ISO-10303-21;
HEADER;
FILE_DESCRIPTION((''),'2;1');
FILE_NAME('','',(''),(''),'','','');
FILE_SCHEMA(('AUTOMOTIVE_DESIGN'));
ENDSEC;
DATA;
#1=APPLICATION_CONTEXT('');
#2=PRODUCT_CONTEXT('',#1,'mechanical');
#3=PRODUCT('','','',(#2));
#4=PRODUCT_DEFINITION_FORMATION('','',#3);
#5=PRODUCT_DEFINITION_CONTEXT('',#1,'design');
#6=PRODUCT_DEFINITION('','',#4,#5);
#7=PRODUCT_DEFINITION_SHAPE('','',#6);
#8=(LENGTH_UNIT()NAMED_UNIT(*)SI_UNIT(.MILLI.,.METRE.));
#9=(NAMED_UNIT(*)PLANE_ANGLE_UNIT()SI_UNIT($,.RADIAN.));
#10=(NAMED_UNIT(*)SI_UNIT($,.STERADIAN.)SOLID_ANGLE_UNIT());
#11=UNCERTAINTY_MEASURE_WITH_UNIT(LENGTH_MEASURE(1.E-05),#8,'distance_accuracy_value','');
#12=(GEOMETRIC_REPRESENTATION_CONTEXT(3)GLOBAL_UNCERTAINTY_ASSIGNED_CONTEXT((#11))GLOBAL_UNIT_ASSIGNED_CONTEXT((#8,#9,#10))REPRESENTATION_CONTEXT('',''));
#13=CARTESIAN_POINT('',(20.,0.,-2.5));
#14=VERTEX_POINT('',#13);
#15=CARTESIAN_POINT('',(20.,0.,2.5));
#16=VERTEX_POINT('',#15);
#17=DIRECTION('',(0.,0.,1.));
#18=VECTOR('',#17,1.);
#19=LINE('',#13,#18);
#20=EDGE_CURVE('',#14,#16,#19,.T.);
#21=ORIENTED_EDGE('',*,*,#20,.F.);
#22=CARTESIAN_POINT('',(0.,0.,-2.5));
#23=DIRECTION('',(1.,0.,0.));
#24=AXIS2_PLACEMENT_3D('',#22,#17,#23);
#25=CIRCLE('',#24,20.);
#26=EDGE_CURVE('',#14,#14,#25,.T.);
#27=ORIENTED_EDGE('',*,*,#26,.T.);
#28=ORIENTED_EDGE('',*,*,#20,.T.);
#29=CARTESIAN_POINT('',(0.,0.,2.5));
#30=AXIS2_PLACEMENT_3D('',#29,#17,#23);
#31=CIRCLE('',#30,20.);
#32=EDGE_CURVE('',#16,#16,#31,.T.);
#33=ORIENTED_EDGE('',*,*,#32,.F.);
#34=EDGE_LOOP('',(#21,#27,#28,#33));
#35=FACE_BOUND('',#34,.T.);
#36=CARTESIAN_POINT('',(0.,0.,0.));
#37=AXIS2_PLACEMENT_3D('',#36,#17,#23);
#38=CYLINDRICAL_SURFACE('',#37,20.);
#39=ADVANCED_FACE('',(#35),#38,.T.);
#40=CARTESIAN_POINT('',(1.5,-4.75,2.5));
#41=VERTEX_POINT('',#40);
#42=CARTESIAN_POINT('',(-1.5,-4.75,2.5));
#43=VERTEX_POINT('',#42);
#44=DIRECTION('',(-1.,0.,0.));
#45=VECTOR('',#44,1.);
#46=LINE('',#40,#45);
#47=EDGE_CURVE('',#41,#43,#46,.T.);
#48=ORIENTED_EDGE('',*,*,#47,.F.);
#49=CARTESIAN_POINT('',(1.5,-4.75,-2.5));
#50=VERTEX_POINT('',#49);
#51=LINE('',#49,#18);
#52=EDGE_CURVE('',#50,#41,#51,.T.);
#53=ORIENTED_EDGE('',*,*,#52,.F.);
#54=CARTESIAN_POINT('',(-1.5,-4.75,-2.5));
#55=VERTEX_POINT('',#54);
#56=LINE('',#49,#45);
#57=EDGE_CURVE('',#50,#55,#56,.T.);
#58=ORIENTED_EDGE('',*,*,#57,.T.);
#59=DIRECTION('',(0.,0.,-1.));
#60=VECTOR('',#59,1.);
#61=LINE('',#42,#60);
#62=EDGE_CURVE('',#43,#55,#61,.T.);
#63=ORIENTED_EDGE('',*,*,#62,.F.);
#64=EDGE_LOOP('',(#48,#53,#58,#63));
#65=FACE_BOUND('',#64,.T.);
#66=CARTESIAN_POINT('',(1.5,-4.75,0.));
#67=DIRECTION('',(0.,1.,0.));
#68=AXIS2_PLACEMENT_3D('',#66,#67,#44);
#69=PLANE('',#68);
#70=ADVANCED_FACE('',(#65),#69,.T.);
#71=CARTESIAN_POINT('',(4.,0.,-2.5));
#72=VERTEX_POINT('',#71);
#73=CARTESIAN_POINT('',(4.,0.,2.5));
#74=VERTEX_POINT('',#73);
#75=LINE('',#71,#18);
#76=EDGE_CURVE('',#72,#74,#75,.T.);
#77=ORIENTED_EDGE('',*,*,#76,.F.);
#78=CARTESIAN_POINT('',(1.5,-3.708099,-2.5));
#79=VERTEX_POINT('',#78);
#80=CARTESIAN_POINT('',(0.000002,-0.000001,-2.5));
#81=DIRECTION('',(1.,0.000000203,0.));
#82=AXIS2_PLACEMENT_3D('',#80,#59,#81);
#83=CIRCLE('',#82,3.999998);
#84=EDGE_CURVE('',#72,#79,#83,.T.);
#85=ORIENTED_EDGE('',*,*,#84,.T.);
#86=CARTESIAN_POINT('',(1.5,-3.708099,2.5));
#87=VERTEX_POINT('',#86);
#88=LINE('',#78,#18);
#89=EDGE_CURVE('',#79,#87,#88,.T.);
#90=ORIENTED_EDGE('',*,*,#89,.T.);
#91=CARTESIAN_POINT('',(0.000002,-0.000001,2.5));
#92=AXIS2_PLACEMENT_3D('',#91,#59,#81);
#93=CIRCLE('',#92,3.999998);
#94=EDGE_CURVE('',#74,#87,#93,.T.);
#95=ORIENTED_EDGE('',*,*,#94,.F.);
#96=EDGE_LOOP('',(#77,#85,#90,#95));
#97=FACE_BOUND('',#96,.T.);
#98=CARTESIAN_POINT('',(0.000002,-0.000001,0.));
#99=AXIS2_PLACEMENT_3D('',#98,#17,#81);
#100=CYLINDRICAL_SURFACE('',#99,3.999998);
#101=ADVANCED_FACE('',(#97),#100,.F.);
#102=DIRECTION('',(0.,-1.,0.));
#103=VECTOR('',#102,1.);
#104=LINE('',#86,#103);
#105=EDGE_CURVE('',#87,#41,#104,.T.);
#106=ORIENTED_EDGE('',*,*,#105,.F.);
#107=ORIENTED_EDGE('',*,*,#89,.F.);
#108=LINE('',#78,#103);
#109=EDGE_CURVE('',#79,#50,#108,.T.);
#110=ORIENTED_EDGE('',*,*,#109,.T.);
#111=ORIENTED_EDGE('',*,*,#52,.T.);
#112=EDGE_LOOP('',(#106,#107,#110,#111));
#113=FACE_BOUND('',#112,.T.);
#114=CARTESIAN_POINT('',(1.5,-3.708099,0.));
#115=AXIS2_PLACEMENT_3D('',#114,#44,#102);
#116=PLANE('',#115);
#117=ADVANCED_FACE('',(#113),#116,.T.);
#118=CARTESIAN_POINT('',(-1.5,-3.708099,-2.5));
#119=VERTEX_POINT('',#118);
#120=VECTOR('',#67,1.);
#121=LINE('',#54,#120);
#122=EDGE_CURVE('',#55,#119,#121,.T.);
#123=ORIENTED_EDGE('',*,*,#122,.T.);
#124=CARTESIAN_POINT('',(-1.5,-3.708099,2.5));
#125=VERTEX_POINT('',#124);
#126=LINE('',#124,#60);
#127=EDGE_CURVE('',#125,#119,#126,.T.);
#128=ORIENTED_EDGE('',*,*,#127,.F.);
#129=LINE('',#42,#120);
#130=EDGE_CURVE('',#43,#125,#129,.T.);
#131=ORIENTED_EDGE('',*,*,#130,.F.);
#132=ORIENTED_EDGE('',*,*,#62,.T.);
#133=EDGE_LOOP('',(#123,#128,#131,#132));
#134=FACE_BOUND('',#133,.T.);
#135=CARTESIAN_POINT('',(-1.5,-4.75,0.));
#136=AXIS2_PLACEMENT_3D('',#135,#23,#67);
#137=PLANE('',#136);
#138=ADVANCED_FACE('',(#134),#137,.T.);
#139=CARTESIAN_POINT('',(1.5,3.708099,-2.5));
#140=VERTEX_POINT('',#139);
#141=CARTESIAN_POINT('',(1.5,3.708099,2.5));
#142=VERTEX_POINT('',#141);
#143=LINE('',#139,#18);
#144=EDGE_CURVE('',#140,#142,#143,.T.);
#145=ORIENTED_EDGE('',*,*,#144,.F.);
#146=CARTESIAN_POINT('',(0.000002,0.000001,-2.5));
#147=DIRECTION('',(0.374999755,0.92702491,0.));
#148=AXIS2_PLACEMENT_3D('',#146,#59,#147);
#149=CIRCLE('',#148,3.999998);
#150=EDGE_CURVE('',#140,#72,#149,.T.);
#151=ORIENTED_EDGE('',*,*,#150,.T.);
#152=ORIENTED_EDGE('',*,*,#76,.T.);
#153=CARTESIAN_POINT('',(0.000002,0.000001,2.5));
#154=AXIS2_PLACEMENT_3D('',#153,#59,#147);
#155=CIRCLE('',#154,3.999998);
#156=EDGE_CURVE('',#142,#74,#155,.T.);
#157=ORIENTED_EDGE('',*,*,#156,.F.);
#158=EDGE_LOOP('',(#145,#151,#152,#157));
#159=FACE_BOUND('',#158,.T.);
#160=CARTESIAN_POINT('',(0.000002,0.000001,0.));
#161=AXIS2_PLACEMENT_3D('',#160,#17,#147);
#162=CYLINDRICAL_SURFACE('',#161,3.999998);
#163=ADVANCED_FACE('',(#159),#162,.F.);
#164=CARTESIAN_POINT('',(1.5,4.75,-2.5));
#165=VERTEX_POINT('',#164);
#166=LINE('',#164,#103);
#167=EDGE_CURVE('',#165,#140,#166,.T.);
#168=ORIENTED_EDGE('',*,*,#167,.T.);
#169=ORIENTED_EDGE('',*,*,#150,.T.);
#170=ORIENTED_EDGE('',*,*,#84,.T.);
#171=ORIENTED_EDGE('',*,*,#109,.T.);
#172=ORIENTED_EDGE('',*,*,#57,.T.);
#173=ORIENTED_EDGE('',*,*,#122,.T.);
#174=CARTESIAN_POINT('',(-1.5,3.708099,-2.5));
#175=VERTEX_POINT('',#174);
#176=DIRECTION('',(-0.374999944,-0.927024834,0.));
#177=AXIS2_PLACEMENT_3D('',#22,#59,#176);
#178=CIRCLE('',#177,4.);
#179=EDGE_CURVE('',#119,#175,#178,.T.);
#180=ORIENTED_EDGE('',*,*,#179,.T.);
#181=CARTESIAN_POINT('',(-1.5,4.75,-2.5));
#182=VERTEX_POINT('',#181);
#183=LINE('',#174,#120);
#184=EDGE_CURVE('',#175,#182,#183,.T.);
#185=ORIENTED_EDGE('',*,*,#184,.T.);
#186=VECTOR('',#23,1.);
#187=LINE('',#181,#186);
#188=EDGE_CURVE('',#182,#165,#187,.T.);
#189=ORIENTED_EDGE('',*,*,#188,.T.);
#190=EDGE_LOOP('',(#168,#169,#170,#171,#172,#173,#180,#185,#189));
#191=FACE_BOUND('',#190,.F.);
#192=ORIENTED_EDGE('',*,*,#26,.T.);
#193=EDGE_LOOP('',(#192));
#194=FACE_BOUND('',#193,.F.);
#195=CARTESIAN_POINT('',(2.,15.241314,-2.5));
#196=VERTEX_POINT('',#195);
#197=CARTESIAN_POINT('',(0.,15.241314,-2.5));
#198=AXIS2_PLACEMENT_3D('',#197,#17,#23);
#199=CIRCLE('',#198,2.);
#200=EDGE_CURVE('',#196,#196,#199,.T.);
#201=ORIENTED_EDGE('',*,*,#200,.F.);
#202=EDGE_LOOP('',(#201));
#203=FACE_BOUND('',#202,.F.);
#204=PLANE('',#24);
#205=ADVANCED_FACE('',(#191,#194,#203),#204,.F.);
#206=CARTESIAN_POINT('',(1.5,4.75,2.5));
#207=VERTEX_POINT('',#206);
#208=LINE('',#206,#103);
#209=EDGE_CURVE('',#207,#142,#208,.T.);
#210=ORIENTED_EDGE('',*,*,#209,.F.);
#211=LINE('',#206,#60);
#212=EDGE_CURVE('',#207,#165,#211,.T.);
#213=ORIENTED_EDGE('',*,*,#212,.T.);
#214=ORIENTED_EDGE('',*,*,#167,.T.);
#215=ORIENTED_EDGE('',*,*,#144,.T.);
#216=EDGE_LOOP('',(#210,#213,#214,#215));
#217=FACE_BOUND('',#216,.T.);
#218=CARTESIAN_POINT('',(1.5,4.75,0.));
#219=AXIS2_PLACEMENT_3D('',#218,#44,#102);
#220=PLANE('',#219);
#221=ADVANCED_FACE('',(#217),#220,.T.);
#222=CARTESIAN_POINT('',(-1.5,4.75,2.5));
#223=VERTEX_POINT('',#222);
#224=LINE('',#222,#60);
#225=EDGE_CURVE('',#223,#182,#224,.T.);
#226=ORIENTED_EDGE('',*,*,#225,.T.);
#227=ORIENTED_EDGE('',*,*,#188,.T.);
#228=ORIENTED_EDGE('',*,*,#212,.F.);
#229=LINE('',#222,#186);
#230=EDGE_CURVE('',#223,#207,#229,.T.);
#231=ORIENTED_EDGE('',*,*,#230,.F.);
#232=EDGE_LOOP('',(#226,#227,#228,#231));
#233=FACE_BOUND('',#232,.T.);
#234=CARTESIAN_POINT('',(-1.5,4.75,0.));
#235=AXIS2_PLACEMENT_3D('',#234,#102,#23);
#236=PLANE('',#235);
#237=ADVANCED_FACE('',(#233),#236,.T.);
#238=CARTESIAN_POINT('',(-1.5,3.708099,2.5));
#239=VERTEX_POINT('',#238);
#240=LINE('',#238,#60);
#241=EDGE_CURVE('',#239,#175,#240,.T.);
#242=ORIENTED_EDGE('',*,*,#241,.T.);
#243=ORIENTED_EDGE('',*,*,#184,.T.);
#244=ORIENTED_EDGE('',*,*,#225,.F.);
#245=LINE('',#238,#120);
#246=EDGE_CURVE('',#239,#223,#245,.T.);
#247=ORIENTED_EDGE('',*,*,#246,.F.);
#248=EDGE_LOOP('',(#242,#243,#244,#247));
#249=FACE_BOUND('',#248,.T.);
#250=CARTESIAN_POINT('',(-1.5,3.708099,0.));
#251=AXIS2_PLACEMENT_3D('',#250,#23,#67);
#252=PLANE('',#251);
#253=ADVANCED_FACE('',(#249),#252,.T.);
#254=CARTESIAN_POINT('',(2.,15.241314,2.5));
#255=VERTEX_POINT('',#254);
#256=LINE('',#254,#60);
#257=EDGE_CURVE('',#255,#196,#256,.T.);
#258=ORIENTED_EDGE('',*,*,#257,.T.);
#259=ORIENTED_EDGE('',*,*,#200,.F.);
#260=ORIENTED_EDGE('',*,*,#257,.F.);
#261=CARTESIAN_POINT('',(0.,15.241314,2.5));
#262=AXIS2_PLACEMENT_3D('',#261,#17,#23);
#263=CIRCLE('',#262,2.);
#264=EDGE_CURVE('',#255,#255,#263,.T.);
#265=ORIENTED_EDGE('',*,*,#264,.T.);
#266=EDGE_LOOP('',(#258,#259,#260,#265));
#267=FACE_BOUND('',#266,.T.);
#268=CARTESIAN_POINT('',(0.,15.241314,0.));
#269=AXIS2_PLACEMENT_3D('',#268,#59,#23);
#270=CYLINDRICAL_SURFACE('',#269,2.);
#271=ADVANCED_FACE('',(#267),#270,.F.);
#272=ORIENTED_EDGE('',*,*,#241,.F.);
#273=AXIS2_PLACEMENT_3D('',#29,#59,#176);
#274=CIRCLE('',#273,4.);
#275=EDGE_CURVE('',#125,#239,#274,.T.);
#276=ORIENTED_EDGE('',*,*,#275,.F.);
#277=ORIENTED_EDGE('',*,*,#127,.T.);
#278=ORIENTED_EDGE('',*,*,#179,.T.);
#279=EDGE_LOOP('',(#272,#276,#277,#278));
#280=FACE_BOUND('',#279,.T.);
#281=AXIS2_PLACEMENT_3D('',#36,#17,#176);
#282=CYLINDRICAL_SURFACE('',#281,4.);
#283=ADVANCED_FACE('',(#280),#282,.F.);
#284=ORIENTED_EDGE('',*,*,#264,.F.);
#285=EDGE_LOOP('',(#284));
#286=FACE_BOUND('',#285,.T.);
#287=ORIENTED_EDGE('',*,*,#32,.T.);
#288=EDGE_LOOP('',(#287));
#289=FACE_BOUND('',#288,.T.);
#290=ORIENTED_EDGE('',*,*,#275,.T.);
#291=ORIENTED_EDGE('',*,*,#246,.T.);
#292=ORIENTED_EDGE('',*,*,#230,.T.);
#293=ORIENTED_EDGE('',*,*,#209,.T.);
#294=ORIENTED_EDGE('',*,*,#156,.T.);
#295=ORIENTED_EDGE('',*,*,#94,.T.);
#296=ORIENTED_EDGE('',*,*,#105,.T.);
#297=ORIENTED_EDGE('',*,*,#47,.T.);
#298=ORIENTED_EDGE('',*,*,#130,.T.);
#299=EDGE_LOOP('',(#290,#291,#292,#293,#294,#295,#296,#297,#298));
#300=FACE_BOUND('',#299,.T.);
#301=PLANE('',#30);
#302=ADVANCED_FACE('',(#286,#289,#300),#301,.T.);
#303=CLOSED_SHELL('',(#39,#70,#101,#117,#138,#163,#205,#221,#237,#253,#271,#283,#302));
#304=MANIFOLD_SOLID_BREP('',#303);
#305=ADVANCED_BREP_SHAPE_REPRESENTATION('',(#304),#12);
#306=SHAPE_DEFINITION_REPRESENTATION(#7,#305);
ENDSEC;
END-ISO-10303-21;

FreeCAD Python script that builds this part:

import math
import FreeCAD as App
import Part
import Sketcher
from FreeCAD import Vector
Q = App.Units.Quantity

doc = App.newDocument("Part")
body = doc.addObject("PartDesign::Body", "Body")

# Sketch on XY plane
sketch1 = doc.addObject("Sketcher::SketchObject", "Sketch")
body.addObject(sketch1)
sketch1.AttachmentSupport = (doc.XY_Plane, [""])
sketch1.MapMode = "FlatFace"
sketch1.addGeometry(Part.Circle(Vector(0, 0, 0), Vector(0, 0, 1), 20), False)
sketch1.addGeometry(Part.LineSegment(Vector(1.5, 4.8, 0), Vector(1.5, 3.7, 0)), False)
sketch1.addGeometry(Part.ArcOfCircle(Part.Circle(Vector(0, 0, 0), Vector(0, 0, 1), 4), math.radians(0), math.radians(68)), False)
sketch1.addGeometry(Part.ArcOfCircle(Part.Circle(Vector(0, 0, 0), Vector(0, 0, 1), 4), math.radians(-68), math.radians(0)), False)
sketch1.addGeometry(Part.LineSegment(Vector(1.5, -3.7, 0), Vector(1.5, -4.8, 0)), False)
sketch1.addGeometry(Part.LineSegment(Vector(1.5, -4.8, 0), Vector(-1.5, -4.8, 0)), False)
sketch1.addGeometry(Part.LineSegment(Vector(-1.5, -4.8, 0), Vector(-1.5, -3.7, 0)), False)
sketch1.addGeometry(Part.ArcOfCircle(Part.Circle(Vector(0, 0, 0), Vector(0, 0, 1), 4), math.radians(112), math.radians(248)), False)
sketch1.addGeometry(Part.LineSegment(Vector(-1.5, 3.7, 0), Vector(-1.5, 4.8, 0)), False)
sketch1.addGeometry(Part.LineSegment(Vector(-1.5, 4.8, 0), Vector(1.5, 4.8, 0)), False)
sketch1.addGeometry(Part.Circle(Vector(0, 15.2, 0), Vector(0, 0, 1), 2), False)
sketch1.addConstraint(Sketcher.Constraint("Coincident", 1, 2, 2, 2))
sketch1.addConstraint(Sketcher.Constraint("Tangent", 2, 1, 3, 2))
sketch1.addConstraint(Sketcher.Constraint("Coincident", 3, 1, 4, 1))
sketch1.addConstraint(Sketcher.Constraint("Coincident", 4, 2, 5, 1))
sketch1.addConstraint(Sketcher.Constraint("Coincident", 5, 2, 6, 1))
sketch1.addConstraint(Sketcher.Constraint("Coincident", 6, 2, 7, 2))
sketch1.addConstraint(Sketcher.Constraint("Coincident", 7, 1, 8, 1))
sketch1.addConstraint(Sketcher.Constraint("Coincident", 8, 2, 9, 1))
sketch1.addConstraint(Sketcher.Constraint("Coincident", 9, 2, 1, 1))
sketch1.addConstraint(Sketcher.Constraint("Vertical", 1))
sketch1.addConstraint(Sketcher.Constraint("Vertical", 4))
sketch1.addConstraint(Sketcher.Constraint("Horizontal", 5))
sketch1.addConstraint(Sketcher.Constraint("Vertical", 6))
sketch1.addConstraint(Sketcher.Constraint("Vertical", 8))
sketch1.addConstraint(Sketcher.Constraint("Horizontal", 9))
sketch1.addConstraint(Sketcher.Constraint("Coincident", 0, 3, -1, 1))
sketch1.addConstraint(Sketcher.Constraint("Coincident", 2, 3, -1, 1))
sketch1.addConstraint(Sketcher.Constraint("Coincident", 7, 3, -1, 1))
sketch1.addConstraint(Sketcher.Constraint("Equal", 2, 3))
sketch1.addConstraint(Sketcher.Constraint("Equal", 3, 7))
sketch1.addConstraint(Sketcher.Constraint("Symmetric", 4, 2, 8, 2, -1, 1))
sketch1.addConstraint(Sketcher.Constraint("PointOnObject", 10, 3, -2))
sketch1.addConstraint(Sketcher.Constraint("PointOnObject", 2, 1, -1))
sketch1.addConstraint(Sketcher.Constraint("Horizontal", 3, 1, 6, 2))
sketch1.addConstraint(Sketcher.Constraint("Horizontal", 1, 2, 7, 1))
sketch1.addConstraint(Sketcher.Constraint("Diameter", 0, Q("40 mm")))
sketch1.addConstraint(Sketcher.Constraint("Diameter", 10, Q("4 mm")))
sketch1.addConstraint(Sketcher.Constraint("Radius", 2, Q("3.999998 mm")))
sketch1.addConstraint(Sketcher.Constraint("DistanceX", 5, 2, 5, 1, Q("3 mm")))
sketch1.addConstraint(Sketcher.Constraint("DistanceY", 4, 2, -1, 1, Q("4.75 mm")))
sketch1.addConstraint(Sketcher.Constraint("DistanceY", -1, 1, 10, 3, Q("15.241314 mm")))
pad1 = doc.addObject("PartDesign::Pad", "Pad")
body.addObject(pad1)
pad1.Profile = sketch1
pad1.Length = 5
pad1.Midplane = True

doc.recompute()
